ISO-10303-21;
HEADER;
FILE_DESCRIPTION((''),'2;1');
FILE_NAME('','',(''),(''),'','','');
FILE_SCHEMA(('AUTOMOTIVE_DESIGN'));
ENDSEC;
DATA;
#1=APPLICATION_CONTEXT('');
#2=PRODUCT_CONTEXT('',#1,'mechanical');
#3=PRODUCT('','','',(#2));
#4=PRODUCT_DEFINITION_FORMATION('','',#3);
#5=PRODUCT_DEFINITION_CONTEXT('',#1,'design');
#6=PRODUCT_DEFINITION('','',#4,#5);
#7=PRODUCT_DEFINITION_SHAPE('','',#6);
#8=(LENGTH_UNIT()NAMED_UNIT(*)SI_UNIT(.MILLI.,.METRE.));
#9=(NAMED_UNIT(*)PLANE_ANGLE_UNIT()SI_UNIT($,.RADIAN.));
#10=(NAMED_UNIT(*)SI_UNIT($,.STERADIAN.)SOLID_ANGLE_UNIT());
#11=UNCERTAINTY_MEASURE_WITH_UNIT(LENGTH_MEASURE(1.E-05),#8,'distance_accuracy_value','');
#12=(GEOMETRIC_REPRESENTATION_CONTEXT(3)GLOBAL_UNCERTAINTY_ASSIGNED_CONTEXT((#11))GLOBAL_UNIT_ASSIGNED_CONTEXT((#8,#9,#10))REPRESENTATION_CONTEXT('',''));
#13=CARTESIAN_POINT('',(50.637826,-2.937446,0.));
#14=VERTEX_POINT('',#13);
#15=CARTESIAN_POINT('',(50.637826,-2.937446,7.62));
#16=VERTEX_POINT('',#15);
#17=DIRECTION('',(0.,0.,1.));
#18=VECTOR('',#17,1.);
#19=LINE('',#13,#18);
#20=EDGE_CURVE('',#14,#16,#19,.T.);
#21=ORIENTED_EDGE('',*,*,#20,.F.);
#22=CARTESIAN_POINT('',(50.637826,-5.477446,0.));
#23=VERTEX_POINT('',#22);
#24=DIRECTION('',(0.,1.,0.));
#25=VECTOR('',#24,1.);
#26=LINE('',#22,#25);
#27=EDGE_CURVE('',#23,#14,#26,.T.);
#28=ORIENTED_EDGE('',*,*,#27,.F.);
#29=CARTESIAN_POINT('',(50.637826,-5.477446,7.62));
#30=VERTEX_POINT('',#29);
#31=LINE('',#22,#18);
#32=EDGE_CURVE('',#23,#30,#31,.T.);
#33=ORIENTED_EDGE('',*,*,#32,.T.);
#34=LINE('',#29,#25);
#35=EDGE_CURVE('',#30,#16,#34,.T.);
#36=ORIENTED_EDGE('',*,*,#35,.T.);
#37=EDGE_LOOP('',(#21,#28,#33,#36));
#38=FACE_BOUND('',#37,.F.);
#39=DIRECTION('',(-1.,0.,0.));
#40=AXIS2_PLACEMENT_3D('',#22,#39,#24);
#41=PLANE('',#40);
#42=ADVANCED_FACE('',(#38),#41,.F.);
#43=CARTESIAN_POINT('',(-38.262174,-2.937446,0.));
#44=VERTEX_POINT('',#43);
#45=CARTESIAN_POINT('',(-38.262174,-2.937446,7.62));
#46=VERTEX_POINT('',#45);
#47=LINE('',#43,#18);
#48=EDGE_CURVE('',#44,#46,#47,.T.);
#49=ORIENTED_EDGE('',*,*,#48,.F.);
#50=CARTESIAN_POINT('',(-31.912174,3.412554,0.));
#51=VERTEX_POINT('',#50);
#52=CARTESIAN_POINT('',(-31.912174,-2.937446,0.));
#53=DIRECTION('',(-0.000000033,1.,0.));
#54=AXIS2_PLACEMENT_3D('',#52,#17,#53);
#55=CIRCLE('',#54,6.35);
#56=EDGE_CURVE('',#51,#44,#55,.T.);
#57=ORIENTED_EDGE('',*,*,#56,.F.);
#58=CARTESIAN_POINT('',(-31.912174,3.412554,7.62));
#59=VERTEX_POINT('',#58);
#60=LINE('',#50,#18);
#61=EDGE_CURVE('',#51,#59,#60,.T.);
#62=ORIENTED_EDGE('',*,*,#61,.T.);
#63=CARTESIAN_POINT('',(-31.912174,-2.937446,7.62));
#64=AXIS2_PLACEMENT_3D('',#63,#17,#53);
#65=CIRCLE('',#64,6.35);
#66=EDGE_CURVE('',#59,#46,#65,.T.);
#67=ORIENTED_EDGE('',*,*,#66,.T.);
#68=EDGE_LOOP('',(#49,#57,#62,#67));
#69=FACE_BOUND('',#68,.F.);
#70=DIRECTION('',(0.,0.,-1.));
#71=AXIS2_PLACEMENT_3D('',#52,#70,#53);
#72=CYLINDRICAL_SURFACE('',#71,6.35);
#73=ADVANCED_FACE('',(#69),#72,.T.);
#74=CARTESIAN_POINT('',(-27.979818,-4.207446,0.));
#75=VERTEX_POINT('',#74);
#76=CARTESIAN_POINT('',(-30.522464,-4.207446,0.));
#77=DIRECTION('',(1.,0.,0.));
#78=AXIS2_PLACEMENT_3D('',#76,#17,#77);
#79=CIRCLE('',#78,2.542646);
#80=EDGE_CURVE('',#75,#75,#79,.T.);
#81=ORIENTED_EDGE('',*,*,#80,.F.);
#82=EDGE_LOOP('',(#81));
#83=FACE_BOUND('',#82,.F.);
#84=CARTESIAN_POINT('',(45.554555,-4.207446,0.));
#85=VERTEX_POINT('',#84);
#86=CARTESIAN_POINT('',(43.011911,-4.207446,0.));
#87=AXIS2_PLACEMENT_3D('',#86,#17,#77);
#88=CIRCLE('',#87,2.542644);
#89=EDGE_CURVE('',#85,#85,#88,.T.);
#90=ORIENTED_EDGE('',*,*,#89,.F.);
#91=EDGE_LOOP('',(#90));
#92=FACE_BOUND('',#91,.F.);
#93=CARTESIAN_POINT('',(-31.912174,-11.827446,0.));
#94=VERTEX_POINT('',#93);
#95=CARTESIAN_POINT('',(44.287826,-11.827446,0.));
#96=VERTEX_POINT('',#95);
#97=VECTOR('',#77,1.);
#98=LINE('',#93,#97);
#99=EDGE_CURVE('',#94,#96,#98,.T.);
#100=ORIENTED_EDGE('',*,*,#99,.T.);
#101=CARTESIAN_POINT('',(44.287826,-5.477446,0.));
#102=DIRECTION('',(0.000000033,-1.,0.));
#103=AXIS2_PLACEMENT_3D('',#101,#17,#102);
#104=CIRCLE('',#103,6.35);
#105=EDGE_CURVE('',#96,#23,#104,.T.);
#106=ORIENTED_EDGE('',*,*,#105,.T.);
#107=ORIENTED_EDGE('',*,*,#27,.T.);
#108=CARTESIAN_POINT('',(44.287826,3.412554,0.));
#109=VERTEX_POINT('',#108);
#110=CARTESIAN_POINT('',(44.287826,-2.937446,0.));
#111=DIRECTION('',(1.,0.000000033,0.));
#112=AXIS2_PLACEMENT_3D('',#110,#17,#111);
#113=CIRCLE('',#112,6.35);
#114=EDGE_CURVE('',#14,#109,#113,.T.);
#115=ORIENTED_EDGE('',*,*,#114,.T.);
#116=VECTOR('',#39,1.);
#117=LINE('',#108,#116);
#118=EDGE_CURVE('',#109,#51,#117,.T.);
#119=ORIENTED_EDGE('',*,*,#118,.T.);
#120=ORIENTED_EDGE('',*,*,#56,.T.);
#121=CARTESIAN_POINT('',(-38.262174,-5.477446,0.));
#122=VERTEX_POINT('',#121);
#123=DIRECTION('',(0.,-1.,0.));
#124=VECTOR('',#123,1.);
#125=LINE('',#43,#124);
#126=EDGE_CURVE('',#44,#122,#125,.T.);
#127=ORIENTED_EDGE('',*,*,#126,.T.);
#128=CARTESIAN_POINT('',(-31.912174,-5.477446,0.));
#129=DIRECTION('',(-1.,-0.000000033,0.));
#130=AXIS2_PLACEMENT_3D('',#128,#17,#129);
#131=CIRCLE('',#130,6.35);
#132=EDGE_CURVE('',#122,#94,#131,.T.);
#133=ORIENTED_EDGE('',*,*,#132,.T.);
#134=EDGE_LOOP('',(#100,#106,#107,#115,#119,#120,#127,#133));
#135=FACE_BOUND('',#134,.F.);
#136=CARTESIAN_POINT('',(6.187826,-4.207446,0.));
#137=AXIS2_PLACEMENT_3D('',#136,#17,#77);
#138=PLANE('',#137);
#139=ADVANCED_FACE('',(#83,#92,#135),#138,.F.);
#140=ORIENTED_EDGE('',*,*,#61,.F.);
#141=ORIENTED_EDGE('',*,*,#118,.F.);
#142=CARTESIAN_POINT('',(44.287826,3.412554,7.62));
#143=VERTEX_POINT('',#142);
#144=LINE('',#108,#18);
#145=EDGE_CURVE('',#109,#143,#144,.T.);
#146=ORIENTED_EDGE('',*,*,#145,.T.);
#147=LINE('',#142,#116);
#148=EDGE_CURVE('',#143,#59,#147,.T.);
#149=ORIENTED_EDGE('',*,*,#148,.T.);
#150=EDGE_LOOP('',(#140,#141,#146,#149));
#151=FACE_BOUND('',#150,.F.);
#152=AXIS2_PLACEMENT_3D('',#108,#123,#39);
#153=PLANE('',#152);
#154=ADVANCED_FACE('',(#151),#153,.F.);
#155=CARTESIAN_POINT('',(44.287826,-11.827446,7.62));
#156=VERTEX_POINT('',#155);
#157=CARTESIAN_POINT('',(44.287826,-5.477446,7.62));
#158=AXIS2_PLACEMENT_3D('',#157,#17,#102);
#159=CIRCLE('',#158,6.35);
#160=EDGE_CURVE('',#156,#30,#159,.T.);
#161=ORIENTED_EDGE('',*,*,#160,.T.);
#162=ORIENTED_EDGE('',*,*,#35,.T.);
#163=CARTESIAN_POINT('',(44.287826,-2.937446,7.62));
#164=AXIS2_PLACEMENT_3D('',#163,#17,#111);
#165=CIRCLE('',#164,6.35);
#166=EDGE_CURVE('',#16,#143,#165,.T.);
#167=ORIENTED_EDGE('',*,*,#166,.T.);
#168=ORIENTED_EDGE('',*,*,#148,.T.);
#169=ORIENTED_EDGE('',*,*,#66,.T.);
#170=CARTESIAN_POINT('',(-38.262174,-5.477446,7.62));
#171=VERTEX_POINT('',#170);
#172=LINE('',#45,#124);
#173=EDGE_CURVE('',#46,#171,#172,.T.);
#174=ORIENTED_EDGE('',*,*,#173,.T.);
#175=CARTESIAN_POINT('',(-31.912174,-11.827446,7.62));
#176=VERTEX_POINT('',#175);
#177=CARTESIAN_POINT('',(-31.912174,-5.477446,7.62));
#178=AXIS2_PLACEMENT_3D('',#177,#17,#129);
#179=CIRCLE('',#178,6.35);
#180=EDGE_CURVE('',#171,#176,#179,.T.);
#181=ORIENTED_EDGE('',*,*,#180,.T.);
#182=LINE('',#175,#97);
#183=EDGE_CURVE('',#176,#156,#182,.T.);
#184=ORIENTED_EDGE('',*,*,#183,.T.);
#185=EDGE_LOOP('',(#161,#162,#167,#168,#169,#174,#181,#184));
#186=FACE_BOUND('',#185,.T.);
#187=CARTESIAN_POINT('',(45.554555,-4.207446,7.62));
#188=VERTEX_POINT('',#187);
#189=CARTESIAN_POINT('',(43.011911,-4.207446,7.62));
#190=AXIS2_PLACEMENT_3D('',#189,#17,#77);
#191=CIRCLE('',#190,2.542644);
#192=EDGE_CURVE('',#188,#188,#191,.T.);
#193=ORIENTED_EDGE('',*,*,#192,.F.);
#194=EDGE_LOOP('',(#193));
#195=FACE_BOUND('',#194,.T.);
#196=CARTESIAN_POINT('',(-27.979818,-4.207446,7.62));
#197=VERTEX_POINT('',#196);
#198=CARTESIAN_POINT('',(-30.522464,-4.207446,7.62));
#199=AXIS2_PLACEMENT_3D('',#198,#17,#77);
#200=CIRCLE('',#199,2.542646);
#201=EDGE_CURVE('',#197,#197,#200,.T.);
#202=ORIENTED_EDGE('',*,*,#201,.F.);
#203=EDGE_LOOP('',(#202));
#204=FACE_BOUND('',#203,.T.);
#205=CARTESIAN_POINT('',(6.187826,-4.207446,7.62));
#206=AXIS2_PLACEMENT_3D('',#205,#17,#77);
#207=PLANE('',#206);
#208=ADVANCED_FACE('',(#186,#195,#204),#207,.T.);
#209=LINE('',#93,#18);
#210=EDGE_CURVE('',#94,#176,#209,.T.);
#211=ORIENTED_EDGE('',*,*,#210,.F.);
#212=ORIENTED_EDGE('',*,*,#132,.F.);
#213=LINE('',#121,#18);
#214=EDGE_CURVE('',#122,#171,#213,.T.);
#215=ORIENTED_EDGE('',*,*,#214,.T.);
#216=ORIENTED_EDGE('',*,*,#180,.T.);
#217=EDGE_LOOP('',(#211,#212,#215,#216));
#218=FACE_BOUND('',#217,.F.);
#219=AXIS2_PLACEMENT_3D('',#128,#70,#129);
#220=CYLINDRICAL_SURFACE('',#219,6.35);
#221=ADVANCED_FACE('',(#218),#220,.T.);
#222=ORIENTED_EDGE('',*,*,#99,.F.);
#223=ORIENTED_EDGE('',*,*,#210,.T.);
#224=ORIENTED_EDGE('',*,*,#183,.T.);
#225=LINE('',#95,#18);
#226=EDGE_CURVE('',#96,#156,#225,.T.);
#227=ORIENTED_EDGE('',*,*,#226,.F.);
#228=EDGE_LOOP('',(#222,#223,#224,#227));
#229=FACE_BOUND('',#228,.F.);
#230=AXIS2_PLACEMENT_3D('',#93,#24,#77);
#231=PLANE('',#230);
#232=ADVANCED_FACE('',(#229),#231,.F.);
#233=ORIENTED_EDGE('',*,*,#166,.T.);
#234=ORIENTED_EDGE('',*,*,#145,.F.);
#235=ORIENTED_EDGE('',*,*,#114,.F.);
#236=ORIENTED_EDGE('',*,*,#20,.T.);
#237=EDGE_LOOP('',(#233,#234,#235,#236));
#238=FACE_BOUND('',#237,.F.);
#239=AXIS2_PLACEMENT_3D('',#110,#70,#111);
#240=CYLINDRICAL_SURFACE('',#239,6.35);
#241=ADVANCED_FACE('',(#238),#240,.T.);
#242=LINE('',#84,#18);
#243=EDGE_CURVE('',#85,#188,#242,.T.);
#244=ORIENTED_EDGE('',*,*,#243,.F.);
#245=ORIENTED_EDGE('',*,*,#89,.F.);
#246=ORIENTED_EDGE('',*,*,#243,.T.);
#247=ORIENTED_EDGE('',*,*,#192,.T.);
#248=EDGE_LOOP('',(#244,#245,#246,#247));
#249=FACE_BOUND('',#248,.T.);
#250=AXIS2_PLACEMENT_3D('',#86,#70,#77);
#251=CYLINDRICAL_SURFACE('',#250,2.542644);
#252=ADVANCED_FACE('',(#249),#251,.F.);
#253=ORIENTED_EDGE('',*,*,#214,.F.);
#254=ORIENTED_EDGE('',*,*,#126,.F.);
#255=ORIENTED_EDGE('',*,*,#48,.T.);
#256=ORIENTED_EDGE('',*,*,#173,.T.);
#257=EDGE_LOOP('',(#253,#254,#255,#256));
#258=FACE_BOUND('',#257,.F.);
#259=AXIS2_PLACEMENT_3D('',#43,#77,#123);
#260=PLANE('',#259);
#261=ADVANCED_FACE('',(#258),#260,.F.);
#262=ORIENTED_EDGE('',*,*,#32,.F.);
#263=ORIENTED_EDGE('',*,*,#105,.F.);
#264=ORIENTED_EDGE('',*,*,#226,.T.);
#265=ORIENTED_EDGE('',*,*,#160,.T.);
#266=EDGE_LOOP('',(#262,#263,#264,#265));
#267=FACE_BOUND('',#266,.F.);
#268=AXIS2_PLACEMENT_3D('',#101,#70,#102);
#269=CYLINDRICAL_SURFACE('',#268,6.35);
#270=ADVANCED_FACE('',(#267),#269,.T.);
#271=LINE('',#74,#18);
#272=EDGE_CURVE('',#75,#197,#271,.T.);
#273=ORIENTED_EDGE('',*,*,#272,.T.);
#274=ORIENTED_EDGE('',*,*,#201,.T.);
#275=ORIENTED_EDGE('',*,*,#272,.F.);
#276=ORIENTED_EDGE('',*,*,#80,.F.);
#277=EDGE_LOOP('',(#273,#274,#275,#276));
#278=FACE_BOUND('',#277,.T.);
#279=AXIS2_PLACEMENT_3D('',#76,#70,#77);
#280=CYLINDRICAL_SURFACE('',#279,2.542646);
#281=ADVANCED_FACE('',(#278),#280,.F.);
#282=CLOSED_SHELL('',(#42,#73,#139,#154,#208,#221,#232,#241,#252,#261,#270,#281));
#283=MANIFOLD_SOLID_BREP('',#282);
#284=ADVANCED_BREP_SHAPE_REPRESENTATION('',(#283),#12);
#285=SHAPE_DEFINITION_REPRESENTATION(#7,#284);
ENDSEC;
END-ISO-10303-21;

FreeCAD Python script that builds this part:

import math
import FreeCAD as App
import Part
import Sketcher
from FreeCAD import Vector
Q = App.Units.Quantity

doc = App.newDocument("Part")
params = doc.addObject("Spreadsheet::Sheet", "Params")
for row, (alias, value) in enumerate([
    ("sketch1_width", "3 in"),
    ("sketch1_radius", "0.25 in"),
    ("sketch1_height", "0.1 in"),
    ("pad1_length", "0.3 in"),
], start=1):
    params.set(f"A{row}", alias)
    params.set(f"B{row}", "=" + value)
    params.setAlias(f"B{row}", alias)

body = doc.addObject("PartDesign::Body", "Body")

# Sketch on XY plane
sketch1 = body.newObject("Sketcher::SketchObject", "Sketch")
sketch1.AttachmentSupport = (doc.getObject("XY_Plane"), [""])
sketch1.MapMode = "FlatFace"
sketch1.addGeometry([
    Part.LineSegment(Vector(44.3, 3.4, 0), Vector(-31.9, 3.4, 0)),  # 0
    Part.ArcOfCircle(Part.Circle(Vector(-31.9, -2.9, 0), Vector(0, 0, 1), 6.4), math.radians(90), math.radians(180)),  # 1
    Part.LineSegment(Vector(-38.3, -2.9, 0), Vector(-38.3, -5.5, 0)),  # 2
    Part.ArcOfCircle(Part.Circle(Vector(-31.9, -5.5, 0), Vector(0, 0, 1), 6.4), math.radians(-180), math.radians(-90)),  # 3
    Part.LineSegment(Vector(-31.9, -11.8, 0), Vector(44.3, -11.8, 0)),  # 4
    Part.ArcOfCircle(Part.Circle(Vector(44.3, -5.5, 0), Vector(0, 0, 1), 6.4), math.radians(-90), math.radians(0)),  # 5
    Part.LineSegment(Vector(50.6, -5.5, 0), Vector(50.6, -2.9, 0)),  # 6
    Part.ArcOfCircle(Part.Circle(Vector(44.3, -2.9, 0), Vector(0, 0, 1), 6.4), math.radians(0), math.radians(90)),  # 7
    Part.Circle(Vector(-30.5, -4.2, 0), Vector(0, 0, 1), 2.5),  # 8
    Part.Circle(Vector(43, -4.2, 0), Vector(0, 0, 1), 2.5),  # 9
], False)
sketch1.addConstraint([
    Sketcher.Constraint("Tangent", 0, 2, 1, 1),
    Sketcher.Constraint("Tangent", 1, 2, 2, 1),
    Sketcher.Constraint("Tangent", 2, 2, 3, 1),
    Sketcher.Constraint("Tangent", 3, 2, 4, 1),
    Sketcher.Constraint("Tangent", 4, 2, 5, 1),
    Sketcher.Constraint("Tangent", 5, 2, 6, 1),
    Sketcher.Constraint("Tangent", 6, 2, 7, 1),
    Sketcher.Constraint("Tangent", 7, 2, 0, 1),
    Sketcher.Constraint("Horizontal", 0),
    Sketcher.Constraint("Vertical", 2),
    Sketcher.Constraint("Horizontal", 4),
    Sketcher.Constraint("Vertical", 6),
    Sketcher.Constraint("Equal", 1, 3),
    Sketcher.Constraint("Equal", 3, 5),
    Sketcher.Constraint("Equal", 5, 7),
    Sketcher.Constraint("Equal", 8, 9),
    Sketcher.Constraint("Horizontal", 8, 3, 9, 3),
    Sketcher.Constraint("DistanceX", 0, 2, 0, 1, Q("3 in")),
    Sketcher.Constraint("Radius", 1, Q("0.25 in")),
    Sketcher.Constraint("DistanceY", 2, 2, 2, 1, Q("0.1 in")),
    Sketcher.Constraint("DistanceY", 8, 3, 0, 2, Q("0.3 in")),
    Sketcher.Constraint("Diameter", 9, 5.085288),
    Sketcher.Constraint("DistanceX", -1, 1, 9, 3, 43.011911),
    Sketcher.Constraint("DistanceX", 1, 3, 8, 3, 1.38971),
    Sketcher.Constraint("DistanceX", 1, 3, -1, 1, 31.912174),
    Sketcher.Constraint("DistanceY", 1, 3, -1, 1, 2.937446),
])
sketch1.setExpression("Constraints[17]", "Params.sketch1_width")
sketch1.setExpression("Constraints[18]", "Params.sketch1_radius")
sketch1.setExpression("Constraints[19]", "Params.sketch1_height")
pad1 = body.newObject("PartDesign::Pad", "Pad")
pad1.Profile = sketch1
pad1.setExpression("Length", "Params.pad1_length")

doc.recompute()
